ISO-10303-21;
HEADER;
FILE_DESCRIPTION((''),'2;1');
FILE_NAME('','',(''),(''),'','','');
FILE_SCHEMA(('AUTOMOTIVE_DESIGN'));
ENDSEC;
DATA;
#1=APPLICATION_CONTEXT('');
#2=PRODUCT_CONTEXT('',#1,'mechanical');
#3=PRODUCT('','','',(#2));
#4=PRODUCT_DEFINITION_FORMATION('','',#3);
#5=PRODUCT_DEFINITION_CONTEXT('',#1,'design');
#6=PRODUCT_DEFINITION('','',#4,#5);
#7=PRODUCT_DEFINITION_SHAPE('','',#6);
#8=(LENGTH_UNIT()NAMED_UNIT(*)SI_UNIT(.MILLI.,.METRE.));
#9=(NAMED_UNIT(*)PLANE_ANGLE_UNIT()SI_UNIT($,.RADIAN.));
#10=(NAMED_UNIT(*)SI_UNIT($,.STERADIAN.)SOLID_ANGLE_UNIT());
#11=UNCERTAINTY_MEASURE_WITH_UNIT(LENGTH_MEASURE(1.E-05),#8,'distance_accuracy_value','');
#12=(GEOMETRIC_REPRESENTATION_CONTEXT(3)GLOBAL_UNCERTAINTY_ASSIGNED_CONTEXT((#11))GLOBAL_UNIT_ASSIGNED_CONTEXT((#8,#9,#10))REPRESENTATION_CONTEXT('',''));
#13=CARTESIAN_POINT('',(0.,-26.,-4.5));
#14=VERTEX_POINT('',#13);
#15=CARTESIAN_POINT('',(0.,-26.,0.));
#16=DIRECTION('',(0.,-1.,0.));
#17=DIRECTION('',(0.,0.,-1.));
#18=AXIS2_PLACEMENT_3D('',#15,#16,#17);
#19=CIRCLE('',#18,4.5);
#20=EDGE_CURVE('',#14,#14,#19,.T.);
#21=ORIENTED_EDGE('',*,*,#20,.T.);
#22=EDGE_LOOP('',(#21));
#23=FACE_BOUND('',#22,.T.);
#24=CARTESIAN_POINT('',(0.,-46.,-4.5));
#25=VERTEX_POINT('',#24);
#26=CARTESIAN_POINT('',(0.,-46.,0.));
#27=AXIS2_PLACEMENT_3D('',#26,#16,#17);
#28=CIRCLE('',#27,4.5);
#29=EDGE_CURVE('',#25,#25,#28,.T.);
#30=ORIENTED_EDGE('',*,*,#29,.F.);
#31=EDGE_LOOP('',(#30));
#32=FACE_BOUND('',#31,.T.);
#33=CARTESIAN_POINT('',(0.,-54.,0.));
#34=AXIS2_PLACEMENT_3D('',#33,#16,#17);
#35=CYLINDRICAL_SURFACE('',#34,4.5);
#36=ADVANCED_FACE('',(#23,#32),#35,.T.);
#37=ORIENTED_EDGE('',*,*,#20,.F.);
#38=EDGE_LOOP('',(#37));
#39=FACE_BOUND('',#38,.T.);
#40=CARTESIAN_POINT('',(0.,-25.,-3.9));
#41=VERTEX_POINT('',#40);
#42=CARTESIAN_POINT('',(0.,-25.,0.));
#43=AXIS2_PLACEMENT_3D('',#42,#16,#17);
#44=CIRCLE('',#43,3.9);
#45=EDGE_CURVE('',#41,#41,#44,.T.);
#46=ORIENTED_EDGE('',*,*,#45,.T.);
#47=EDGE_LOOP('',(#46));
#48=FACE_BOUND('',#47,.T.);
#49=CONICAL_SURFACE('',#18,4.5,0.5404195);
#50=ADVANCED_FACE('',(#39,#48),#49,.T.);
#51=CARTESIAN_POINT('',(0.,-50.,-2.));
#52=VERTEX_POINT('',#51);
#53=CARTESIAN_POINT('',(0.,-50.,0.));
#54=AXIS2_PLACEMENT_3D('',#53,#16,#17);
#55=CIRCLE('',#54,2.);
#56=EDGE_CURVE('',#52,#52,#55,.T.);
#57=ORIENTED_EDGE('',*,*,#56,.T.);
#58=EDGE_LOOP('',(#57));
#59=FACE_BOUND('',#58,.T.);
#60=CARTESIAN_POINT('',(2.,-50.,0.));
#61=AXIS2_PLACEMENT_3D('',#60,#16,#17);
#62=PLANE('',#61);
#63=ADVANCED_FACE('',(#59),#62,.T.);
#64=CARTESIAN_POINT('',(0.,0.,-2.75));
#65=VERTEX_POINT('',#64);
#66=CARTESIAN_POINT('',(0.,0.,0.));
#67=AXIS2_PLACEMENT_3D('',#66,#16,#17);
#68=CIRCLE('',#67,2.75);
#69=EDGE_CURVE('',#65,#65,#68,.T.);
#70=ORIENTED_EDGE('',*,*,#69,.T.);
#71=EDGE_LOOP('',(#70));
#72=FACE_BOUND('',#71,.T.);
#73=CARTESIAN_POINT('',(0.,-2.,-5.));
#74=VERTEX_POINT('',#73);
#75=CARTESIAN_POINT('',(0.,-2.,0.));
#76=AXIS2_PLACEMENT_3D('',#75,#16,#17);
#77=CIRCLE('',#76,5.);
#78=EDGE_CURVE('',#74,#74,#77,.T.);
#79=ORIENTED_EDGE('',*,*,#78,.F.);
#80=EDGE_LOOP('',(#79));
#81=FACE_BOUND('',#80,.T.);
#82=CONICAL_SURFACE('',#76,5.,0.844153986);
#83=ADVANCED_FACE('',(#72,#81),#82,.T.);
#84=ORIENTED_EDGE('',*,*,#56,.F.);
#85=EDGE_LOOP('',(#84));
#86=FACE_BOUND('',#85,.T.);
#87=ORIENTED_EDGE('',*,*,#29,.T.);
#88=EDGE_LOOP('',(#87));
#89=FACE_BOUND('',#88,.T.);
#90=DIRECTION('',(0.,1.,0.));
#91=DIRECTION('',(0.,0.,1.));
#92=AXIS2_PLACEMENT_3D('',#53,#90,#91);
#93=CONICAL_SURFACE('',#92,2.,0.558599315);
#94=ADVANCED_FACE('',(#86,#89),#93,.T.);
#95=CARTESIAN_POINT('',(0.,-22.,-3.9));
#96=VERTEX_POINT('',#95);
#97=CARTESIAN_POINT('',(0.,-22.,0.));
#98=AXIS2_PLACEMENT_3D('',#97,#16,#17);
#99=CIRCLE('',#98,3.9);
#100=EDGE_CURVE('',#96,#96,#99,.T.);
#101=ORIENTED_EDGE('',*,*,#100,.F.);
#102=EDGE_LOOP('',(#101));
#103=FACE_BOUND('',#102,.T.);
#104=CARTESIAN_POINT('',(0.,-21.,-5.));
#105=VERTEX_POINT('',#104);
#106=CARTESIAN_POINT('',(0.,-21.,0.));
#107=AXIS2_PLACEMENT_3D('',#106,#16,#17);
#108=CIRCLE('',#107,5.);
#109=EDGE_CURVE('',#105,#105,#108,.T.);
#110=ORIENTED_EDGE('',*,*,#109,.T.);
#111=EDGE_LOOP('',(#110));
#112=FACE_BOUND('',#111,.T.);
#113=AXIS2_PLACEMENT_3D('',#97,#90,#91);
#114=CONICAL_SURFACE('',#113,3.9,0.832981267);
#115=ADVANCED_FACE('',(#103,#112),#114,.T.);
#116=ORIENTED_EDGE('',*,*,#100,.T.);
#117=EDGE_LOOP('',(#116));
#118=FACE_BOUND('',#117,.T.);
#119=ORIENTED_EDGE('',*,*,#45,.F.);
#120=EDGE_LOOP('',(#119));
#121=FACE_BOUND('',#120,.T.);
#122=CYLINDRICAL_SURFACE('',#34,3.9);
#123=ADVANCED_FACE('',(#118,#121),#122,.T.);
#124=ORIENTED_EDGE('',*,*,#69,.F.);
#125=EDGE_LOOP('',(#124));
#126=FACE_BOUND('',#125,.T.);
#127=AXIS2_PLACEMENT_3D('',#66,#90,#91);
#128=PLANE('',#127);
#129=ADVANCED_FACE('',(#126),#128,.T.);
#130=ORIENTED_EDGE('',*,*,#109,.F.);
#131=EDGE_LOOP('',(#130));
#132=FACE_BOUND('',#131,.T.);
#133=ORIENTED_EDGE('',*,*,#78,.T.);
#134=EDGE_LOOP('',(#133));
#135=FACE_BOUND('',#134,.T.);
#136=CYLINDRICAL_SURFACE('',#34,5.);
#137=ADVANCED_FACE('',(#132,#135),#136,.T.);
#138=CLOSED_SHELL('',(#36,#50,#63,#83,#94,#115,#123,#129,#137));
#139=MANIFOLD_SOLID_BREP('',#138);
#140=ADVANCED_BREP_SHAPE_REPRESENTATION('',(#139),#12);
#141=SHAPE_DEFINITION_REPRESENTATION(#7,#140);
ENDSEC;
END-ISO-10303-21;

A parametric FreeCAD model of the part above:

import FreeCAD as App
import Part
import Sketcher

doc = App.newDocument("Part")
body = doc.addObject("PartDesign::Body", "Body")

sketch1 = body.newObject("Sketcher::SketchObject", "Sketch")
sketch1.AttachmentSupport = (doc.getObject("XY_Plane"), [""])
sketch1.MapMode = "FlatFace"
sketch1.addGeometry([
    Part.LineSegment(App.Vector(2.75, 0, 0), App.Vector(0, 0, 0)),
    Part.LineSegment(App.Vector(0, 0, 0), App.Vector(0, -50, 0)),
    Part.LineSegment(App.Vector(0, -50, 0), App.Vector(2, -50, 0)),
    Part.LineSegment(App.Vector(2, -50, 0), App.Vector(4.5, -46, 0)),
    Part.LineSegment(App.Vector(4.5, -46, 0), App.Vector(4.5, -26, 0)),
    Part.LineSegment(App.Vector(4.5, -26, 0), App.Vector(3.9, -25, 0)),
    Part.LineSegment(App.Vector(3.9, -25, 0), App.Vector(3.9, -22, 0)),
    Part.LineSegment(App.Vector(3.9, -22, 0), App.Vector(5, -21, 0)),
    Part.LineSegment(App.Vector(5, -21, 0), App.Vector(5, -2, 0)),
    Part.LineSegment(App.Vector(5, -2, 0), App.Vector(2.75, 0, 0)),
], False)
sketch1.addConstraint([
    Sketcher.Constraint("Coincident", 0, 2, 1, 1),
    Sketcher.Constraint("Coincident", 1, 2, 2, 1),
    Sketcher.Constraint("Coincident", 2, 2, 3, 1),
    Sketcher.Constraint("Coincident", 3, 2, 4, 1),
    Sketcher.Constraint("Coincident", 4, 2, 5, 1),
    Sketcher.Constraint("Coincident", 5, 2, 6, 1),
    Sketcher.Constraint("Coincident", 6, 2, 7, 1),
    Sketcher.Constraint("Coincident", 7, 2, 8, 1),
    Sketcher.Constraint("Coincident", 8, 2, 9, 1),
    Sketcher.Constraint("Coincident", 9, 2, 0, 1),
    Sketcher.Constraint("Horizontal", 0),
    Sketcher.Constraint("Vertical", 1),
    Sketcher.Constraint("Horizontal", 2),
    Sketcher.Constraint("Vertical", 4),
    Sketcher.Constraint("Vertical", 6),
    Sketcher.Constraint("Vertical", 8),
    Sketcher.Constraint("Coincident", 0, 2, -1, 1),
    Sketcher.Constraint("DistanceX", 2, 1, 2, 2, 2.0),
    Sketcher.Constraint("DistanceY", 1, 2, 1, 1, 50.0),
    Sketcher.Constraint("DistanceY", 4, 1, 4, 2, 20.0),
    Sketcher.Constraint("DistanceY", 6, 1, 6, 2, 3.0),
    Sketcher.Constraint("DistanceY", 8, 1, 8, 2, 19.0),
    Sketcher.Constraint("DistanceY", 3, 2, -1, 1, 46.0),
    Sketcher.Constraint("DistanceY", 5, 2, -1, 1, 25.0),
    Sketcher.Constraint("DistanceX", -1, 1, 7, 2, 5.0),
    Sketcher.Constraint("DistanceY", 7, 2, -1, 1, 21.0),
    Sketcher.Constraint("DistanceX", 0, 2, 0, 1, 2.75),
    Sketcher.Constraint("DistanceX", -1, 1, 3, 2, 4.5),
    Sketcher.Constraint("DistanceX", -1, 1, 5, 2, 3.9),
])
revolution = body.newObject("PartDesign::Revolution", "Revolution")
revolution.Profile = sketch1
revolution.ReferenceAxis = (sketch1, ["V_Axis"])
revolution.Angle = 360

doc.recompute()
